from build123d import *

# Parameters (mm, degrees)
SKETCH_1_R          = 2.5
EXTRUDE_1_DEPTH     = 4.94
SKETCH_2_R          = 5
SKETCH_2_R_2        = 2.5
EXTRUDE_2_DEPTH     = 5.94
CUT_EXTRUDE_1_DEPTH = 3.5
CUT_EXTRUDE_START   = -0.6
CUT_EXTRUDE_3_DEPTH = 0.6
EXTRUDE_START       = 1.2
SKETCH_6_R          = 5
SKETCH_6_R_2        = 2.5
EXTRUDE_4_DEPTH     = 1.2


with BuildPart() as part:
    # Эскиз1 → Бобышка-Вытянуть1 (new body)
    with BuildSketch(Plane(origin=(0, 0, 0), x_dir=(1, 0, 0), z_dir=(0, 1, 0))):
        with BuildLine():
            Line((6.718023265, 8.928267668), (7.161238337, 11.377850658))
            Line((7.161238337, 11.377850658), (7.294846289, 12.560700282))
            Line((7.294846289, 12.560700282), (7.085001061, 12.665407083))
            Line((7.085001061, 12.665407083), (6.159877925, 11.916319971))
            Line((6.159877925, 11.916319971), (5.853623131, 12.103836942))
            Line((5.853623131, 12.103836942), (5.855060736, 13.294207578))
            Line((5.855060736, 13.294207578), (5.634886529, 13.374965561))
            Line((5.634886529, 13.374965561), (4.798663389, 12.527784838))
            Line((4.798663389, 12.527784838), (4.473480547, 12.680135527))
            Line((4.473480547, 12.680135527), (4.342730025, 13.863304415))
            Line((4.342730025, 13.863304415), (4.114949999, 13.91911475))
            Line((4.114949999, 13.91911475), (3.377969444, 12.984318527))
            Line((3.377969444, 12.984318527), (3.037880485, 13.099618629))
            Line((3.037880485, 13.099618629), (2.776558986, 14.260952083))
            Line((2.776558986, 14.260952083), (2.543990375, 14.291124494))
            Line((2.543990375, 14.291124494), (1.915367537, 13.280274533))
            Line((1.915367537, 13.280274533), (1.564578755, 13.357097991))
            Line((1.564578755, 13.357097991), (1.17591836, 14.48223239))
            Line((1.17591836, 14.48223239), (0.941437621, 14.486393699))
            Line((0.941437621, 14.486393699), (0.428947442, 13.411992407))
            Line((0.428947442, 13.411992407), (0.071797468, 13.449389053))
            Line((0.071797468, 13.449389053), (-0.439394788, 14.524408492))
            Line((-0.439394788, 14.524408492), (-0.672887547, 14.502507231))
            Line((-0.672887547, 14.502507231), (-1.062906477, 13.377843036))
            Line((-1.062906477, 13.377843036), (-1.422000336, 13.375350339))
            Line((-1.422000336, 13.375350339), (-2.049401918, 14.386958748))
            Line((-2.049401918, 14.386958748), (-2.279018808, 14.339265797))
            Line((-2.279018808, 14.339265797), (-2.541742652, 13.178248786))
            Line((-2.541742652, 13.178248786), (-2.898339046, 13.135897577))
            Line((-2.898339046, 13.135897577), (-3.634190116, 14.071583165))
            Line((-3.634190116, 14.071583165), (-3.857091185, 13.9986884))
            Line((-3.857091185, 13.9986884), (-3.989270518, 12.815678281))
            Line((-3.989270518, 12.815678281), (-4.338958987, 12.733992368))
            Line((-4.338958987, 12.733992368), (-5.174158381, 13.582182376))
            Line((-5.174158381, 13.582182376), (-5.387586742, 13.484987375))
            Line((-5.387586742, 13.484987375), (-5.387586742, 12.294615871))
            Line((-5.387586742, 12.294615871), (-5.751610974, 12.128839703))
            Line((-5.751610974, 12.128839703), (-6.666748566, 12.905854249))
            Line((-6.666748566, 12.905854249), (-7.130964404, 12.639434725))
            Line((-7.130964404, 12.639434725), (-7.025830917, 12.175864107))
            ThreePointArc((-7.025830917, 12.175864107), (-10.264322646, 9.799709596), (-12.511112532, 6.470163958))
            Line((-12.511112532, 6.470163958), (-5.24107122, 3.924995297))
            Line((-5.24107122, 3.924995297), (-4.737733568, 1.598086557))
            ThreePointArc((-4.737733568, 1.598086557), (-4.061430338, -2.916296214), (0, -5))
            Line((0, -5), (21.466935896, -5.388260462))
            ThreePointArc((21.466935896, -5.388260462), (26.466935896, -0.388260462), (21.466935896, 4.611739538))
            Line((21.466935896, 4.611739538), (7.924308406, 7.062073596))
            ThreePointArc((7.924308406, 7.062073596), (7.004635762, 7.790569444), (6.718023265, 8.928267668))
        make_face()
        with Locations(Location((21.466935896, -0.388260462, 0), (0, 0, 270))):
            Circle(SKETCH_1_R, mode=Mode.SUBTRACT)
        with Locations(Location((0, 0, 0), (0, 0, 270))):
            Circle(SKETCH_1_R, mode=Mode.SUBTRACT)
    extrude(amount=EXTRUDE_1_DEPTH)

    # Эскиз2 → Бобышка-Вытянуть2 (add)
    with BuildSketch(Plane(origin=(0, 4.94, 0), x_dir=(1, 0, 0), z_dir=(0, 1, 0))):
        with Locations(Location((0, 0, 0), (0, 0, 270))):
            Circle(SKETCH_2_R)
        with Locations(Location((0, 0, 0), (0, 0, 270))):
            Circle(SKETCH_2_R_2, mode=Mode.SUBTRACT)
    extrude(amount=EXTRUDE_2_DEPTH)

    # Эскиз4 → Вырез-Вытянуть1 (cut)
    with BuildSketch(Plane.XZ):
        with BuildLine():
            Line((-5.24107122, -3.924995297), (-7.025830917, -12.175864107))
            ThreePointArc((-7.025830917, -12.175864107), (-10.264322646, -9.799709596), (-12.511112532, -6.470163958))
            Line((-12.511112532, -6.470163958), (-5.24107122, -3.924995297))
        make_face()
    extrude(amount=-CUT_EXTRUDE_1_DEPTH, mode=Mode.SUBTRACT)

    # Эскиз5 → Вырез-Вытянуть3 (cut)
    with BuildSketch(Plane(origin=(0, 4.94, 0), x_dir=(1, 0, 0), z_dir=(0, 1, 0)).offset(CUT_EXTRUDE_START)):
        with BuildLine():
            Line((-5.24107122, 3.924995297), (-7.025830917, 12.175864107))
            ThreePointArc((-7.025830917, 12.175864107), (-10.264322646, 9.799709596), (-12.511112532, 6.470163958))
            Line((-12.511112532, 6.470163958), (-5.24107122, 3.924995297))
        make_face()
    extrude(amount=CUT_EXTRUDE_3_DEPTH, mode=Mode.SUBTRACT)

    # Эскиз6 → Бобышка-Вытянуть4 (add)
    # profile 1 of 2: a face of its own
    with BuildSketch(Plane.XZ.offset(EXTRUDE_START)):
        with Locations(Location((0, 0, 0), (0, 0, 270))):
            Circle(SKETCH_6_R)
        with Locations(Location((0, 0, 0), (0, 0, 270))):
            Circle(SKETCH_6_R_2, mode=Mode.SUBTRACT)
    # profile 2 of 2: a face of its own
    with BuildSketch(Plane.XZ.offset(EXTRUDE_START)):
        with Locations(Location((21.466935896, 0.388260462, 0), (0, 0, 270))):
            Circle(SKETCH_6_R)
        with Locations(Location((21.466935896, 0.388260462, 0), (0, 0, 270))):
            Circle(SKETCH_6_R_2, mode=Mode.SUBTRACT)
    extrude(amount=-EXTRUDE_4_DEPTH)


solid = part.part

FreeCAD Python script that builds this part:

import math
import FreeCAD as App
import Part
import Sketcher
from FreeCAD import Vector
Q = App.Units.Quantity

doc = App.newDocument("Part")
body = doc.addObject("PartDesign::Body", "Body")

sketch1 = body.newObject("Sketcher::SketchObject", "Sketch")
sketch1.AttachmentSupport = (doc.getObject("XZ_Plane"), [""])
sketch1.MapMode = "FlatFace"
sketch1.addGeometry([
    Part.LineSegment(Vector(6.718023, -8.928268, 0), Vector(7.161238, -11.377851, 0)),
    Part.LineSegment(Vector(7.161238, -11.377851, 0), Vector(7.294846, -12.5607, 0)),
    Part.LineSegment(Vector(7.294846, -12.5607, 0), Vector(7.085001, -12.665407, 0)),
    Part.LineSegment(Vector(7.085001, -12.665407, 0), Vector(6.159878, -11.91632, 0)),
    Part.LineSegment(Vector(6.159878, -11.91632, 0), Vector(5.853623, -12.103837, 0)),
    Part.LineSegment(Vector(5.853623, -12.103837, 0), Vector(5.855061, -13.294208, 0)),
    Part.LineSegment(Vector(5.855061, -13.294208, 0), Vector(5.634887, -13.374966, 0)),
    Part.LineSegment(Vector(5.634887, -13.374966, 0), Vector(4.798663, -12.527785, 0)),
    Part.LineSegment(Vector(4.798663, -12.527785, 0), Vector(4.473481, -12.680136, 0)),
    Part.LineSegment(Vector(4.473481, -12.680136, 0), Vector(4.34273, -13.863304, 0)),
    Part.LineSegment(Vector(4.34273, -13.863304, 0), Vector(4.11495, -13.919115, 0)),
    Part.LineSegment(Vector(4.11495, -13.919115, 0), Vector(3.377969, -12.984319, 0)),
    Part.LineSegment(Vector(3.377969, -12.984319, 0), Vector(3.03788, -13.099619, 0)),
    Part.LineSegment(Vector(3.03788, -13.099619, 0), Vector(2.776559, -14.260952, 0)),
    Part.LineSegment(Vector(2.776559, -14.260952, 0), Vector(2.54399, -14.291124, 0)),
    Part.LineSegment(Vector(2.54399, -14.291124, 0), Vector(1.915368, -13.280275, 0)),
    Part.LineSegment(Vector(1.915368, -13.280275, 0), Vector(1.564579, -13.357098, 0)),
    Part.LineSegment(Vector(1.564579, -13.357098, 0), Vector(1.175918, -14.482232, 0)),
    Part.LineSegment(Vector(1.175918, -14.482232, 0), Vector(0.941438, -14.486394, 0)),
    Part.LineSegment(Vector(0.941438, -14.486394, 0), Vector(0.428947, -13.411992, 0)),
    Part.LineSegment(Vector(0.428947, -13.411992, 0), Vector(0.071797, -13.449389, 0)),
    Part.LineSegment(Vector(0.071797, -13.449389, 0), Vector(-0.439395, -14.524408, 0)),
    Part.LineSegment(Vector(-0.439395, -14.524408, 0), Vector(-0.672888, -14.502507, 0)),
    Part.LineSegment(Vector(-0.672888, -14.502507, 0), Vector(-1.062906, -13.377843, 0)),
    Part.LineSegment(Vector(-1.062906, -13.377843, 0), Vector(-1.422, -13.37535, 0)),
    Part.LineSegment(Vector(-1.422, -13.37535, 0), Vector(-2.049402, -14.386959, 0)),
    Part.LineSegment(Vector(-2.049402, -14.386959, 0), Vector(-2.279019, -14.339266, 0)),
    Part.LineSegment(Vector(-2.279019, -14.339266, 0), Vector(-2.541743, -13.178249, 0)),
    Part.LineSegment(Vector(-2.541743, -13.178249, 0), Vector(-2.898339, -13.135898, 0)),
    Part.LineSegment(Vector(-2.898339, -13.135898, 0), Vector(-3.63419, -14.071583, 0)),
    Part.LineSegment(Vector(-3.63419, -14.071583, 0), Vector(-3.857091, -13.998688, 0)),
    Part.LineSegment(Vector(-3.857091, -13.998688, 0), Vector(-3.989271, -12.815678, 0)),
    Part.LineSegment(Vector(-3.989271, -12.815678, 0), Vector(-4.338959, -12.733992, 0)),
    Part.LineSegment(Vector(-4.338959, -12.733992, 0), Vector(-5.174158, -13.582182, 0)),
    Part.LineSegment(Vector(-5.174158, -13.582182, 0), Vector(-5.387587, -13.484987, 0)),
    Part.LineSegment(Vector(-5.387587, -13.484987, 0), Vector(-5.387587, -12.294616, 0)),
    Part.LineSegment(Vector(-5.387587, -12.294616, 0), Vector(-5.751611, -12.12884, 0)),
    Part.LineSegment(Vector(-5.751611, -12.12884, 0), Vector(-6.666749, -12.905854, 0)),
    Part.LineSegment(Vector(-6.666749, -12.905854, 0), Vector(-7.130964, -12.639435, 0)),
    Part.LineSegment(Vector(-7.130964, -12.639435, 0), Vector(-7.025831, -12.175864, 0)),
    Part.ArcOfCircle(Part.Circle(Vector(-1.809542, -1.671548, 0), Vector(0, 0, 1), 11.728185), math.radians(-155.848394), math.radians(-116.408319)),
    Part.LineSegment(Vector(-12.511113, -6.470164, 0), Vector(-5.241071, -3.924995, 0)),
    Part.LineSegment(Vector(-5.241071, -3.924995, 0), Vector(-4.737734, -1.598087, 0)),
    Part.ArcOfCircle(Part.Circle(Vector(0, 0, 0), Vector(0, 0, 1), 5), math.radians(90), math.radians(198.639783)),
    Part.LineSegment(Vector(0, 5, 0), Vector(21.466936, 5.38826, 0)),
    Part.ArcOfCircle(Part.Circle(Vector(21.466936, 0.38826, 0), Vector(0, 0, 1), 5), math.radians(-90), math.radians(90)),
    Part.LineSegment(Vector(21.466936, -4.61174, 0), Vector(7.924308, -7.062074, 0)),
    Part.ArcOfCircle(Part.Circle(Vector(8.538236, -8.78187, 0), Vector(0, 0, 1), 1.826091), math.radians(109.645397), math.radians(184.598332)),
    Part.Circle(Vector(21.466936, 0.38826, 0), Vector(0, 0, 1), 2.5),
    Part.Circle(Vector(0, 0, 0), Vector(0, 0, 1), 2.5),
], False)
sketch1.addConstraint([
    Sketcher.Constraint("Coincident", 0, 2, 1, 1),
    Sketcher.Constraint("Coincident", 1, 2, 2, 1),
    Sketcher.Constraint("Coincident", 2, 2, 3, 1),
    Sketcher.Constraint("Coincident", 3, 2, 4, 1),
    Sketcher.Constraint("Coincident", 4, 2, 5, 1),
    Sketcher.Constraint("Coincident", 5, 2, 6, 1),
    Sketcher.Constraint("Coincident", 6, 2, 7, 1),
    Sketcher.Constraint("Coincident", 7, 2, 8, 1),
    Sketcher.Constraint("Coincident", 8, 2, 9, 1),
    Sketcher.Constraint("Coincident", 9, 2, 10, 1),
    Sketcher.Constraint("Coincident", 10, 2, 11, 1),
    Sketcher.Constraint("Coincident", 11, 2, 12, 1),
    Sketcher.Constraint("Coincident", 12, 2, 13, 1),
    Sketcher.Constraint("Coincident", 13, 2, 14, 1),
    Sketcher.Constraint("Coincident", 14, 2, 15, 1),
    Sketcher.Constraint("Coincident", 15, 2, 16, 1),
    Sketcher.Constraint("Coincident", 16, 2, 17, 1),
    Sketcher.Constraint("Coincident", 17, 2, 18, 1),
    Sketcher.Constraint("Coincident", 18, 2, 19, 1),
    Sketcher.Constraint("Coincident", 19, 2, 20, 1),
    Sketcher.Constraint("Coincident", 20, 2, 21, 1),
    Sketcher.Constraint("Coincident", 21, 2, 22, 1),
    Sketcher.Constraint("Coincident", 22, 2, 23, 1),
    Sketcher.Constraint("Coincident", 23, 2, 24, 1),
    Sketcher.Constraint("Coincident", 24, 2, 25, 1),
    Sketcher.Constraint("Coincident", 25, 2, 26, 1),
    Sketcher.Constraint("Coincident", 26, 2, 27, 1),
    Sketcher.Constraint("Coincident", 27, 2, 28, 1),
    Sketcher.Constraint("Coincident", 28, 2, 29, 1),
    Sketcher.Constraint("Coincident", 29, 2, 30, 1),
    Sketcher.Constraint("Coincident", 30, 2, 31, 1),
    Sketcher.Constraint("Coincident", 31, 2, 32, 1),
    Sketcher.Constraint("Coincident", 32, 2, 33, 1),
    Sketcher.Constraint("Coincident", 33, 2, 34, 1),
    Sketcher.Constraint("Coincident", 34, 2, 35, 1),
    Sketcher.Constraint("Coincident", 35, 2, 36, 1),
    Sketcher.Constraint("Coincident", 36, 2, 37, 1),
    Sketcher.Constraint("Coincident", 37, 2, 38, 1),
    Sketcher.Constraint("Coincident", 38, 2, 39, 1),
    Sketcher.Constraint("Coincident", 39, 2, 40, 2),
    Sketcher.Constraint("Coincident", 40, 1, 41, 1),
    Sketcher.Constraint("Coincident", 41, 2, 42, 1),
    Sketcher.Constraint("Coincident", 42, 2, 43, 2),
    Sketcher.Constraint("Coincident", 43, 1, 44, 1),
    Sketcher.Constraint("Coincident", 44, 2, 45, 2),
    Sketcher.Constraint("Coincident", 45, 1, 46, 1),
    Sketcher.Constraint("Coincident", 46, 2, 47, 1),
    Sketcher.Constraint("Coincident", 47, 2, 0, 1),
    Sketcher.Constraint("Vertical", 35),
    Sketcher.Constraint("Coincident", 43, 3, -1, 1),
    Sketcher.Constraint("Coincident", 49, 3, -1, 1),
    Sketcher.Constraint("Coincident", 48, 3, 45, 3),
    Sketcher.Constraint("PointOnObject", 43, 1, -2),
    Sketcher.Constraint("Diameter", 48, Q("5 mm")),
    Sketcher.Constraint("Diameter", 49, Q("5 mm")),
    Sketcher.Constraint("Radius", 43, Q("5 mm")),
    Sketcher.Constraint("Radius", 45, Q("5 mm")),
    Sketcher.Constraint("Radius", 47, Q("1.826091 mm")),
    Sketcher.Constraint("DistanceX", -1, 1, 2, 2, Q("7.085001 mm")),
    Sketcher.Constraint("DistanceX", 24, 2, -1, 1, Q("1.422 mm")),
    Sketcher.Constraint("Radius", 40, Q("11.728185 mm")),
    Sketcher.Constraint("DistanceY", 35, 1, 35, 2, Q("1.190372 mm")),
    Sketcher.Constraint("DistanceY", 1, 2, -1, 1, Q("12.5607 mm")),
    Sketcher.Constraint("DistanceX", 25, 2, -1, 1, Q("2.049402 mm")),
    Sketcher.Constraint("DistanceX", 47, 3, 45, 3, Q("12.9287 mm")),
    Sketcher.Constraint("DistanceY", 5, 2, 2, 2, Q("0.6288 mm")),
    Sketcher.Constraint("DistanceY", 8, 2, 4, 2, Q("0.576299 mm")),
    Sketcher.Constraint("DistanceY", 12, 2, 11, 2, Q("0.1153 mm")),
    Sketcher.Constraint("DistanceX", 12, 2, 8, 2, Q("1.4356 mm")),
    Sketcher.Constraint("DistanceX", 15, 2, 11, 2, Q("1.462602 mm")),
    Sketcher.Constraint("DistanceX", 16, 2, 12, 2, Q("1.473302 mm")),
    Sketcher.Constraint("DistanceY", 18, 2, 19, 2, Q("1.074401 mm")),
    Sketcher.Constraint("DistanceY", 21, 2, 22, 2, Q("0.021901 mm")),
    Sketcher.Constraint("DistanceX", 25, 2, 20, 2, Q("2.121199 mm")),
    Sketcher.Constraint("DistanceY", 24, 2, 27, 2, Q("0.197102 mm")),
    Sketcher.Constraint("DistanceX", 30, 2, 29, 2, Q("0.222901 mm")),
    Sketcher.Constraint("DistanceX", 33, 2, 32, 2, Q("0.835199 mm")),
    Sketcher.Constraint("DistanceY", 29, 2, 33, 2, Q("0.489401 mm")),
    Sketcher.Constraint("DistanceY", 30, 2, 34, 2, Q("0.513701 mm")),
    Sketcher.Constraint("DistanceY", 39, 2, 40, 1, Q("5.7057 mm")),
    Sketcher.Constraint("DistanceX", 40, 1, 36, 2, Q("6.759502 mm")),
    Sketcher.Constraint("DistanceX", 47, 3, 44, 2, Q("12.9287 mm")),
    Sketcher.Constraint("DistanceX", 47, 3, 45, 1, Q("12.9287 mm")),
    Sketcher.Constraint("DistanceX", 4, 2, 47, 2, Q("0.8644 mm")),
    Sketcher.Constraint("Distance", 1, Q("1.190372 mm")),
    Sketcher.Constraint("Distance", 3, Q("1.190372 mm")),
    Sketcher.Constraint("Distance", 5, Q("1.190372 mm")),
    Sketcher.Constraint("Distance", 7, Q("1.190372 mm")),
    Sketcher.Constraint("Distance", 9, Q("1.190372 mm")),
    Sketcher.Constraint("Distance", 11, Q("1.190372 mm")),
    Sketcher.Constraint("Distance", 13, Q("1.190372 mm")),
    Sketcher.Constraint("Distance", 15, Q("1.190372 mm")),
    Sketcher.Constraint("Distance", 17, Q("1.190372 mm")),
    Sketcher.Constraint("Distance", 19, Q("1.190372 mm")),
    Sketcher.Constraint("Distance", 21, Q("1.190372 mm")),
    Sketcher.Constraint("Distance", 23, Q("1.190372 mm")),
    Sketcher.Constraint("Distance", 25, Q("1.190372 mm")),
    Sketcher.Constraint("Distance", 27, Q("1.190372 mm")),
    Sketcher.Constraint("Distance", 29, Q("1.190372 mm")),
    Sketcher.Constraint("Distance", 31, Q("1.190372 mm")),
    Sketcher.Constraint("Distance", 33, Q("1.190372 mm")),
    Sketcher.Constraint("Distance", 37, Q("1.200512 mm")),
    Sketcher.Constraint("DistanceX", 40, 3, -1, 1, Q("1.809542 mm")),
    Sketcher.Constraint("DistanceY", -1, 1, 45, 3, Q("0.38826 mm")),
    Sketcher.Constraint("DistanceY", 47, 3, -1, 1, Q("8.78187 mm")),
    Sketcher.Constraint("DistanceX", -1, 1, 0, 2, Q("7.161238 mm")),
    Sketcher.Constraint("DistanceY", 0, 2, -1, 1, Q("11.377851 mm")),
    Sketcher.Constraint("DistanceY", 3, 2, -1, 1, Q("11.91632 mm")),
    Sketcher.Constraint("DistanceX", -1, 1, 5, 2, Q("5.855061 mm")),
    Sketcher.Constraint("DistanceX", -1, 1, 8, 2, Q("4.473481 mm")),
    Sketcher.Constraint("DistanceX", -1, 1, 9, 2, Q("4.34273 mm")),
    Sketcher.Constraint("DistanceX", -1, 1, 10, 2, Q("4.11495 mm")),
    Sketcher.Constraint("DistanceX", -1, 1, 11, 2, Q("3.377969 mm")),
    Sketcher.Constraint("DistanceY", 11, 2, -1, 1, Q("12.984319 mm")),
    Sketcher.Constraint("DistanceX", -1, 1, 13, 2, Q("2.776559 mm")),
    Sketcher.Constraint("DistanceX", -1, 1, 14, 2, Q("2.54399 mm")),
    Sketcher.Constraint("DistanceX", -1, 1, 17, 2, Q("1.175918 mm")),
    Sketcher.Constraint("DistanceY", 20, 2, -1, 1, Q("13.449389 mm")),
    Sketcher.Constraint("DistanceY", 21, 2, -1, 1, Q("14.524408 mm")),
    Sketcher.Constraint("DistanceY", 24, 2, -1, 1, Q("13.37535 mm")),
    Sketcher.Constraint("DistanceX", 26, 2, -1, 1, Q("2.279019 mm")),
    Sketcher.Constraint("DistanceX", 28, 2, -1, 1, Q("2.898339 mm")),
    Sketcher.Constraint("DistanceX", 29, 2, -1, 1, Q("3.63419 mm")),
    Sketcher.Constraint("DistanceY", 30, 2, -1, 1, Q("13.998688 mm")),
    Sketcher.Constraint("DistanceX", 31, 2, -1, 1, Q("3.989271 mm")),
    Sketcher.Constraint("DistanceX", 32, 2, -1, 1, Q("4.338959 mm")),
    Sketcher.Constraint("DistanceX", 36, 2, -1, 1, Q("5.751611 mm")),
    Sketcher.Constraint("DistanceY", 36, 2, -1, 1, Q("12.12884 mm")),
    Sketcher.Constraint("DistanceX", 37, 2, -1, 1, Q("6.666749 mm")),
    Sketcher.Constraint("DistanceX", 41, 2, -1, 1, Q("5.241071 mm")),
    Sketcher.Constraint("DistanceX", -1, 1, 46, 2, Q("7.924308 mm")),
    Sketcher.Constraint("DistanceY", 40, 3, 45, 3, Q("2.059808 mm")),
    Sketcher.Constraint("DistanceX", 40, 3, 47, 3, Q("10.347778 mm")),
    Sketcher.Constraint("DistanceY", 2, 2, 40, 3, Q("10.993859 mm")),
    Sketcher.Constraint("DistanceY", 6, 2, 4, 2, Q("1.271129 mm")),
    Sketcher.Constraint("DistanceX", 6, 2, 3, 2, Q("0.524991 mm")),
    Sketcher.Constraint("DistanceX", 7, 2, 4, 2, Q("1.05496 mm")),
    Sketcher.Constraint("DistanceY", 6, 2, 7, 2, Q("0.847181 mm")),
    Sketcher.Constraint("DistanceY", 14, 2, 10, 2, Q("0.37201 mm")),
    Sketcher.Constraint("DistanceY", 16, 2, 12, 2, Q("0.257479 mm")),
    Sketcher.Constraint("DistanceX", 18, 2, 17, 2, Q("0.234481 mm")),
    Sketcher.Constraint("DistanceY", 18, 2, 17, 2, Q("0.004161 mm")),
    Sketcher.Constraint("DistanceX", 23, 2, 22, 2, Q("0.390019 mm")),
    Sketcher.Constraint("DistanceX", 23, 2, 21, 2, Q("0.623512 mm")),
    Sketcher.Constraint("DistanceY", 22, 2, 26, 2, Q("0.163241 mm")),
    Sketcher.Constraint("DistanceY", 27, 2, 28, 2, Q("0.042351 mm")),
    Sketcher.Constraint("DistanceX", 34, 2, 33, 2, Q("0.213428 mm")),
    Sketcher.Constraint("DistanceY", 37, 2, 38, 2, Q("0.26642 mm")),
    Sketcher.Constraint("DistanceX", 40, 1, 38, 2, Q("5.380148 mm")),
    Sketcher.Constraint("DistanceY", 40, 1, 41, 2, Q("2.545169 mm")),
    Sketcher.Constraint("DistanceY", 41, 2, 42, 2, Q("2.326909 mm")),
])
pad1 = body.newObject("PartDesign::Pad", "Pad")
pad1.Profile = sketch1
pad1.Length = 4.94
pad1.Reversed = True

sketch2 = body.newObject("Sketcher::SketchObject", "Sketch001")
sketch2.AttachmentSupport = (doc.getObject("XZ_Plane"), [""])
sketch2.MapMode = "FlatFace"
sketch2.AttachmentOffset = App.Placement(Vector(0, 0, -4.94), App.Rotation())
sketch2.addGeometry([
    Part.Circle(Vector(0, 0, 0), Vector(0, 0, 1), 5),
    Part.Circle(Vector(0, 0, 0), Vector(0, 0, 1), 2.5),
], False)
sketch2.addConstraint([
    Sketcher.Constraint("Coincident", 0, 3, -1, 1),
    Sketcher.Constraint("Coincident", 1, 3, -1, 1),
    Sketcher.Constraint("Diameter", 0, Q("10 mm")),
    Sketcher.Constraint("Diameter", 1, Q("5 mm")),
])
pad2 = body.newObject("PartDesign::Pad", "Pad001")
pad2.Profile = sketch2
pad2.Length = 5.94
pad2.Reversed = True

sketch3 = body.newObject("Sketcher::SketchObject", "Sketch002")
sketch3.AttachmentSupport = (doc.getObject("XZ_Plane"), [""])
sketch3.MapMode = "FlatFace"
sketch3.addGeometry([
    Part.LineSegment(Vector(-7, -12, 0), Vector(-5, -4, 0)),
    Part.LineSegment(Vector(-5, -4, 0), Vector(-13, -6, 0)),
    Part.ArcOfCircle(Part.Circle(Vector(-2, -2, 0), Vector(0, 0, 1), 12), math.radians(-156), math.radians(-116)),
], False)
sketch3.addConstraint([
    Sketcher.Constraint("Coincident", 0, 2, 1, 1),
    Sketcher.Constraint("Coincident", 1, 2, 2, 1),
    Sketcher.Constraint("Coincident", 2, 2, 0, 1),
    Sketcher.Constraint("Radius", 2, Q("11.728185 mm")),
    Sketcher.Constraint("DistanceY", 2, 2, 1, 2, Q("5.7057 mm")),
    Sketcher.Constraint("DistanceX", 2, 3, -1, 1, Q("1.809542 mm")),
    Sketcher.Constraint("DistanceX", 0, 2, -1, 1, Q("5.241071 mm")),
    Sketcher.Constraint("DistanceX", 2, 2, -1, 1, Q("7.025831 mm")),
    Sketcher.Constraint("DistanceY", 1, 2, 0, 2, Q("2.545169 mm")),
    Sketcher.Constraint("DistanceY", 2, 3, -1, 1, Q("1.671548 mm")),
])
pocket1 = body.newObject("PartDesign::Pocket", "Pocket")
pocket1.Profile = sketch3
pocket1.Length = 3.5

sketch4 = body.newObject("Sketcher::SketchObject", "Sketch003")
sketch4.AttachmentSupport = (doc.getObject("XZ_Plane"), [""])
sketch4.MapMode = "FlatFace"
sketch4.AttachmentOffset = App.Placement(Vector(0, 0, -4.34), App.Rotation())
sketch4.addGeometry([
    Part.LineSegment(Vector(-5, -4, 0), Vector(-7, -12, 0)),
    Part.ArcOfCircle(Part.Circle(Vector(-2, -2, 0), Vector(0, 0, 1), 12), math.radians(-156), math.radians(-116)),
    Part.LineSegment(Vector(-13, -6, 0), Vector(-5, -4, 0)),
], False)
sketch4.addConstraint([
    Sketcher.Constraint("Coincident", 0, 2, 1, 2),
    Sketcher.Constraint("Coincident", 1, 1, 2, 1),
    Sketcher.Constraint("Coincident", 2, 2, 0, 1),
    Sketcher.Constraint("Radius", 1, Q("11.728185 mm")),
    Sketcher.Constraint("DistanceY", 0, 2, 1, 1, Q("5.7057 mm")),
    Sketcher.Constraint("DistanceX", 1, 3, -1, 1, Q("1.809542 mm")),
    Sketcher.Constraint("DistanceX", 0, 2, -1, 1, Q("7.025831 mm")),
    Sketcher.Constraint("DistanceX", 2, 2, -1, 1, Q("5.241071 mm")),
    Sketcher.Constraint("DistanceY", 1, 1, 2, 2, Q("2.545169 mm")),
    Sketcher.Constraint("DistanceY", 1, 3, -1, 1, Q("1.671548 mm")),
])
pocket2 = body.newObject("PartDesign::Pocket", "Pocket001")
pocket2.Profile = sketch4
pocket2.Length = 0.6

sketch5 = body.newObject("Sketcher::SketchObject", "Sketch004")
sketch5.AttachmentSupport = (doc.getObject("XZ_Plane"), [""])
sketch5.MapMode = "FlatFace"
sketch5.AttachmentOffset = App.Placement(Vector(0, 0, 1.2), App.Rotation())
sketch5.addGeometry([
    Part.Circle(Vector(0, 0, 0), Vector(0, 0, 1), 5),
    Part.Circle(Vector(0, 0, 0), Vector(0, 0, 1), 2.5),
    Part.Circle(Vector(21.5, 0.4, 0), Vector(0, 0, 1), 5),
    Part.Circle(Vector(21.5, 0.4, 0), Vector(0, 0, 1), 2.5),
], False)
sketch5.addConstraint([
    Sketcher.Constraint("Coincident", 0, 3, -1, 1),
    Sketcher.Constraint("Coincident", 1, 3, -1, 1),
    Sketcher.Constraint("Coincident", 3, 3, 2, 3),
    Sketcher.Constraint("Equal", 0, 2),
    Sketcher.Constraint("Equal", 1, 3),
    Sketcher.Constraint("Diameter", 0, Q("10 mm")),
    Sketcher.Constraint("Diameter", 1, Q("5 mm")),
    Sketcher.Constraint("DistanceY", -1, 1, 2, 3, Q("0.38826 mm")),
    Sketcher.Constraint("DistanceX", -1, 1, 2, 3, Q("21.466936 mm")),
])
pad3 = body.newObject("PartDesign::Pad", "Pad002")
pad3.Profile = sketch5
pad3.Length = 1.2
pad3.Reversed = True

doc.recompute()
